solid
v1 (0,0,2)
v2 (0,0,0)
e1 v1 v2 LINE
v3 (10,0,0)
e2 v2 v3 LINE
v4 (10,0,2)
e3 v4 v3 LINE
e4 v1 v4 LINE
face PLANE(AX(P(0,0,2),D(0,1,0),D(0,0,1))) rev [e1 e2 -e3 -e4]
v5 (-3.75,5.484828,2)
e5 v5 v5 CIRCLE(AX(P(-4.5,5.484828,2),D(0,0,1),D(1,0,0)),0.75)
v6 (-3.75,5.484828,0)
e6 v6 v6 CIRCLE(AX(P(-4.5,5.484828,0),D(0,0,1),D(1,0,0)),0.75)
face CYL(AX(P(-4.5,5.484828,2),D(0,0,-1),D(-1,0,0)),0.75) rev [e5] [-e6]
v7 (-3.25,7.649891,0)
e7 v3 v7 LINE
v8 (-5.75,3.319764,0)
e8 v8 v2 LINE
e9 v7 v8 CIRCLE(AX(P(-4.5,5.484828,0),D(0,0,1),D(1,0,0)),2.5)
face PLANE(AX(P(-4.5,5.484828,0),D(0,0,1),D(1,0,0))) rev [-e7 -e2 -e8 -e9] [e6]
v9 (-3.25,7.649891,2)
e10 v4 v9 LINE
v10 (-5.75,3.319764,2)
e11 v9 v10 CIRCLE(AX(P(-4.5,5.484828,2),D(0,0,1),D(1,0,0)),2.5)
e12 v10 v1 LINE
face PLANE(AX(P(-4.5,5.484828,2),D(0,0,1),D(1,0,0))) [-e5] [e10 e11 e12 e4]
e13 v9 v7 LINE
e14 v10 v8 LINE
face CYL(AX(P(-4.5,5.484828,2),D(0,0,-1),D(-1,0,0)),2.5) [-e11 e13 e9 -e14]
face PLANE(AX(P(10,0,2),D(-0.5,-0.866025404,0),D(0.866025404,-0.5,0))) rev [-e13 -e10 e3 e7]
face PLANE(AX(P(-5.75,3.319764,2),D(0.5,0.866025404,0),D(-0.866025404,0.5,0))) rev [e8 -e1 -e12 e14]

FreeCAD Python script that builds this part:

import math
import FreeCAD as App
import Part
import Sketcher
from FreeCAD import Vector

doc = App.newDocument("Part")
body = doc.addObject("PartDesign::Body", "Body")

# Sketch on XY plane
sketch1 = body.newObject("Sketcher::SketchObject", "Sketch")
sketch1.AttachmentSupport = (doc.getObject("XY_Plane"), [""])
sketch1.MapMode = "FlatFace"
sketch1.addGeometry(Part.LineSegment(Vector(0, 0, 0), Vector(10, 0, 0)), False)
sketch1.addGeometry(Part.LineSegment(Vector(10, 0, 0), Vector(-3.2, 7.6, 0)), False)
sketch1.addGeometry(Part.ArcOfCircle(Part.Circle(Vector(-4.5, 5.5, 0), Vector(0, 0, 1), 2.5), math.radians(60), math.radians(240)), False)
sketch1.addGeometry(Part.LineSegment(Vector(-5.8, 3.3, 0), Vector(0, 0, 0)), False)
sketch1.addGeometry(Part.Circle(Vector(-4.5, 5.5, 0), Vector(0, 0, 1), 0.8), False)
sketch1.addConstraint(Sketcher.Constraint("Coincident", 0, 2, 1, 1))
sketch1.addConstraint(Sketcher.Constraint("Tangent", 1, 2, 2, 1))
sketch1.addConstraint(Sketcher.Constraint("Tangent", 2, 2, 3, 1))
sketch1.addConstraint(Sketcher.Constraint("Coincident", 3, 2, 0, 1))
sketch1.addConstraint(Sketcher.Constraint("Horizontal", 0))
sketch1.addConstraint(Sketcher.Constraint("Coincident", 3, 2, -1, 1))
sketch1.addConstraint(Sketcher.Constraint("Coincident", 4, 3, 2, 3))
sketch1.addConstraint(Sketcher.Constraint("Parallel", 1, 3))
sketch1.addConstraint(Sketcher.Constraint("Diameter", 4, 1.5))
sketch1.addConstraint(Sketcher.Constraint("Radius", 2, 2.5))
sketch1.addConstraint(Sketcher.Constraint("DistanceX", 0, 1, 0, 2, 10.0))
sketch1.addConstraint(Sketcher.Constraint("DistanceX", 2, 3, -1, 1, 4.5))
pad1 = body.newObject("PartDesign::Pad", "Pad")
pad1.Profile = sketch1
pad1.Length = 2

doc.recompute()
